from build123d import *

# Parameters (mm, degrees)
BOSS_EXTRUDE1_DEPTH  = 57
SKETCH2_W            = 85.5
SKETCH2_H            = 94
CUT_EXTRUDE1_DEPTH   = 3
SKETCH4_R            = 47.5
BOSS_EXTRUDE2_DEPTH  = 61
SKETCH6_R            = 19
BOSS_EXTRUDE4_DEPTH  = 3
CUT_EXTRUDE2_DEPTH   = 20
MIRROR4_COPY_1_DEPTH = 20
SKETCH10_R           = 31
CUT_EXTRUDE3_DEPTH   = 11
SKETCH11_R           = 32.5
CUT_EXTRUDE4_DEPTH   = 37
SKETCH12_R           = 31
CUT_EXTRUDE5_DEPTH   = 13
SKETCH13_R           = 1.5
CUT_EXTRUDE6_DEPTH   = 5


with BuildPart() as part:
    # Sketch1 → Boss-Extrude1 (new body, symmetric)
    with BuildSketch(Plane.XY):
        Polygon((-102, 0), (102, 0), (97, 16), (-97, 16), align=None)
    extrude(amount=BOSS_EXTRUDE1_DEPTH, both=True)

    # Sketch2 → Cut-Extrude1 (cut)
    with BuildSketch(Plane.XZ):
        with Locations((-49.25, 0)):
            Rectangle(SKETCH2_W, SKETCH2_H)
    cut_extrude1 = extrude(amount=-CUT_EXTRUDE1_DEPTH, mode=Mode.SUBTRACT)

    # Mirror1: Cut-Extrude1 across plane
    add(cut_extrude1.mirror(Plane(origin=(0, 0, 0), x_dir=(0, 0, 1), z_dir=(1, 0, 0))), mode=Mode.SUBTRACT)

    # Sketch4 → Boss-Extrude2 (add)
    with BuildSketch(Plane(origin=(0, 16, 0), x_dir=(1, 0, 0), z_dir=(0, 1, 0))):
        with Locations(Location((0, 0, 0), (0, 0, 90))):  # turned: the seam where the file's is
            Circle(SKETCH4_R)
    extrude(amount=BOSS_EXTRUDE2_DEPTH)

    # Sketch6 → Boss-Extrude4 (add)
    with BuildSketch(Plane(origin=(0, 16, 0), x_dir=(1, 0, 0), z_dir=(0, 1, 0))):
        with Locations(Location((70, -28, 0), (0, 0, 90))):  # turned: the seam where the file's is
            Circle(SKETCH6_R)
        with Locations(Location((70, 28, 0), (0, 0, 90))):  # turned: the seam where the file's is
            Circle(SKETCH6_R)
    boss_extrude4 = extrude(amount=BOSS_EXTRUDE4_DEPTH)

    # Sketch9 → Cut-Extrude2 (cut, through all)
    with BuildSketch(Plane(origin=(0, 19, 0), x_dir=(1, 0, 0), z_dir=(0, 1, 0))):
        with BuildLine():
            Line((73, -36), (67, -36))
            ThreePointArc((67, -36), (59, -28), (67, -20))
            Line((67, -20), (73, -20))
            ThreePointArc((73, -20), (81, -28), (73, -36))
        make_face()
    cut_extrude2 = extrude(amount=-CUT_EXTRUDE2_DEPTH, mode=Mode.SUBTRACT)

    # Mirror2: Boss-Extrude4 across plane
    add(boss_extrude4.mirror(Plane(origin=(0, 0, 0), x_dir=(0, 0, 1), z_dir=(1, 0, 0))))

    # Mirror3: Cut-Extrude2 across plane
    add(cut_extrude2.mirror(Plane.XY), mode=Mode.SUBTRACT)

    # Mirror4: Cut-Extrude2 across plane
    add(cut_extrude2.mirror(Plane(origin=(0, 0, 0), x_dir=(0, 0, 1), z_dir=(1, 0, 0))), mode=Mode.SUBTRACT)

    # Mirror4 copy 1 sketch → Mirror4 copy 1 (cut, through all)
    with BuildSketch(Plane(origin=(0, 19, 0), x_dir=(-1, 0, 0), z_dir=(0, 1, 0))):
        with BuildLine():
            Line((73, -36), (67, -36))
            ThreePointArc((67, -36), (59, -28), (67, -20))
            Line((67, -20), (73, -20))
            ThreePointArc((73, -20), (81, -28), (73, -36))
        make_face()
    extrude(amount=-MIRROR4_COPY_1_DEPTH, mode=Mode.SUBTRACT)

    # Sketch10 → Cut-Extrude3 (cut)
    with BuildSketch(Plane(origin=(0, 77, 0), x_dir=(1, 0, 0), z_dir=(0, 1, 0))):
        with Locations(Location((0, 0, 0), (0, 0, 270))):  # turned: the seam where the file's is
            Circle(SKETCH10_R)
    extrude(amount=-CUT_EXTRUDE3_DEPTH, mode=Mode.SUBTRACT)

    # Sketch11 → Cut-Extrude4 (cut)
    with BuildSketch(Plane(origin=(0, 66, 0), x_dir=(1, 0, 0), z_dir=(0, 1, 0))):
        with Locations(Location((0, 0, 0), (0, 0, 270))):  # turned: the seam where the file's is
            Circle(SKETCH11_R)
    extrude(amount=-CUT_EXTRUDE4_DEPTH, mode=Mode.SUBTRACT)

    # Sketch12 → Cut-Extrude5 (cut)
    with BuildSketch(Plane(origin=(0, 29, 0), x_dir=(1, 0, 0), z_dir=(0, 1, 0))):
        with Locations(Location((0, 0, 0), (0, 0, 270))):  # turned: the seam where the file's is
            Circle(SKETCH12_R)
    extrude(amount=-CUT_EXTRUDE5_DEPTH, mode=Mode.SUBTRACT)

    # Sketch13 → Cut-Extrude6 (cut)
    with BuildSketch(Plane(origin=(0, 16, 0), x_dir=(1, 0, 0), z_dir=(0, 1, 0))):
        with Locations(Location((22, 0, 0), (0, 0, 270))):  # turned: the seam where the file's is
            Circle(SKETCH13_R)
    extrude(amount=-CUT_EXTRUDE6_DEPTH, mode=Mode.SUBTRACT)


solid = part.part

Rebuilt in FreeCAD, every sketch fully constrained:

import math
import FreeCAD as App
import Part
import Sketcher

doc = App.newDocument("Part")
body = doc.addObject("PartDesign::Body", "Body")

sketch1 = body.newObject("Sketcher::SketchObject", "Sketch")
sketch1.AttachmentSupport = (doc.getObject("XY_Plane"), [""])
sketch1.MapMode = "FlatFace"
sketch1.addGeometry([
    Part.LineSegment(App.Vector(-102, 0, 0), App.Vector(102, 0, 0)),
    Part.LineSegment(App.Vector(102, 0, 0), App.Vector(97, 16, 0)),
    Part.LineSegment(App.Vector(97, 16, 0), App.Vector(-97, 16, 0)),
    Part.LineSegment(App.Vector(-97, 16, 0), App.Vector(-102, 0, 0)),
], False)
sketch1.addConstraint([
    Sketcher.Constraint("Coincident", 0, 2, 1, 1),
    Sketcher.Constraint("Coincident", 1, 2, 2, 1),
    Sketcher.Constraint("Coincident", 2, 2, 3, 1),
    Sketcher.Constraint("Coincident", 3, 2, 0, 1),
    Sketcher.Constraint("Horizontal", 0),
    Sketcher.Constraint("Horizontal", 2),
    Sketcher.Constraint("Symmetric", 0, 2, 3, 2, -1, 1),
    Sketcher.Constraint("Equal", 1, 3),
    Sketcher.Constraint("DistanceX", 0, 1, 0, 2, 204.0),
    Sketcher.Constraint("DistanceX", 2, 2, 2, 1, 194.0),
    Sketcher.Constraint("DistanceY", -1, 1, 1, 2, 16.0),
])
pad1 = body.newObject("PartDesign::Pad", "Pad")
pad1.Profile = sketch1
pad1.Length = 114
pad1.Midplane = True

sketch2 = body.newObject("Sketcher::SketchObject", "Sketch001")
sketch2.AttachmentSupport = (doc.getObject("XZ_Plane"), [""])
sketch2.MapMode = "FlatFace"
sketch2.addGeometry([
    Part.LineSegment(App.Vector(-92, 47, 0), App.Vector(-92, -47, 0)),
    Part.LineSegment(App.Vector(-92, -47, 0), App.Vector(-6, -47, 0)),
    Part.LineSegment(App.Vector(-6, -47, 0), App.Vector(-6, 47, 0)),
    Part.LineSegment(App.Vector(-6, 47, 0), App.Vector(-92, 47, 0)),
], False)
sketch2.addConstraint([
    Sketcher.Constraint("Coincident", 0, 2, 1, 1),
    Sketcher.Constraint("Coincident", 1, 2, 2, 1),
    Sketcher.Constraint("Coincident", 2, 2, 3, 1),
    Sketcher.Constraint("Coincident", 3, 2, 0, 1),
    Sketcher.Constraint("Vertical", 0),
    Sketcher.Constraint("Horizontal", 1),
    Sketcher.Constraint("Vertical", 2),
    Sketcher.Constraint("Horizontal", 3),
    Sketcher.Constraint("DistanceY", 0, 2, 0, 1, 94.0),
    Sketcher.Constraint("DistanceX", 1, 1, 1, 2, 85.5),
    Sketcher.Constraint("DistanceX", 0, 2, -1, 1, 92.0),
    Sketcher.Constraint("DistanceY", 0, 2, -1, 1, 47.0),
])
pocket1 = body.newObject("PartDesign::Pocket", "Pocket")
pocket1.Profile = sketch2
pocket1.Length = 3
doc.recompute()

mirrored = body.newObject("PartDesign::Mirrored", "Mirrored")
mirrored.Originals = [pocket1]
mirrored.MirrorPlane = (doc.getObject("YZ_Plane"), [""])
body.Tip = mirrored

sketch3 = body.newObject("Sketcher::SketchObject", "Sketch002")
sketch3.AttachmentSupport = (doc.getObject("XZ_Plane"), [""])
sketch3.MapMode = "FlatFace"
sketch3.AttachmentOffset = App.Placement(App.Vector(0, 0, -16), App.Rotation())
sketch3.addGeometry(Part.Circle(App.Vector(0, 0, 0), App.Vector(0, 0, 1), 48), False)
sketch3.addConstraint([
    Sketcher.Constraint("Coincident", 0, 3, -1, 1),
    Sketcher.Constraint("Diameter", 0, 95.0),
])
pad2 = body.newObject("PartDesign::Pad", "Pad001")
pad2.Profile = sketch3
pad2.Length = 61
pad2.Reversed = True

sketch4 = body.newObject("Sketcher::SketchObject", "Sketch003")
sketch4.AttachmentSupport = (doc.getObject("XZ_Plane"), [""])
sketch4.MapMode = "FlatFace"
sketch4.AttachmentOffset = App.Placement(App.Vector(0, 0, -16), App.Rotation())
sketch4.addGeometry([
    Part.Circle(App.Vector(70, 28, 0), App.Vector(0, 0, 1), 19),
    Part.Circle(App.Vector(70, -28, 0), App.Vector(0, 0, 1), 19),
], False)
sketch4.addConstraint([
    Sketcher.Constraint("Equal", 0, 1),
    Sketcher.Constraint("Symmetric", 0, 3, 1, 3, -1),
    Sketcher.Constraint("Diameter", 0, 38.0),
    Sketcher.Constraint("DistanceX", -1, 1, 0, 3, 70.0),
    Sketcher.Constraint("DistanceY", -1, 1, 0, 3, 28.0),
])
pad3 = body.newObject("PartDesign::Pad", "Pad002")
pad3.Profile = sketch4
pad3.Length = 3
pad3.Reversed = True

sketch5 = body.newObject("Sketcher::SketchObject", "Sketch004")
sketch5.AttachmentSupport = (doc.getObject("XZ_Plane"), [""])
sketch5.MapMode = "FlatFace"
sketch5.AttachmentOffset = App.Placement(App.Vector(0, 0, -19), App.Rotation())
sketch5.addGeometry([
    Part.LineSegment(App.Vector(67, 36, 0), App.Vector(73, 36, 0)),
    Part.ArcOfCircle(Part.Circle(App.Vector(73, 28, 0), App.Vector(0, 0, 1), 8), math.radians(-90), math.radians(90)),
    Part.LineSegment(App.Vector(73, 20, 0), App.Vector(67, 20, 0)),
    Part.ArcOfCircle(Part.Circle(App.Vector(67, 28, 0), App.Vector(0, 0, 1), 8), math.radians(90), math.radians(270)),
], False)
sketch5.addConstraint([
    Sketcher.Constraint("Tangent", 0, 2, 1, 2),
    Sketcher.Constraint("Tangent", 1, 1, 2, 1),
    Sketcher.Constraint("Tangent", 2, 2, 3, 2),
    Sketcher.Constraint("Tangent", 3, 1, 0, 1),
    Sketcher.Constraint("Horizontal", 0),
    Sketcher.Constraint("Horizontal", 2),
    Sketcher.Constraint("Radius", 1, 8.0),
    Sketcher.Constraint("DistanceX", 0, 1, 0, 2, 6.0),
    Sketcher.Constraint("DistanceX", -1, 1, 1, 3, 73.0),
    Sketcher.Constraint("DistanceY", -1, 1, 1, 3, 28.0),
])
pocket2 = body.newObject("PartDesign::Pocket", "Pocket001")
pocket2.Profile = sketch5
pocket2.Type = "ThroughAll"
pocket2.Reversed = True
doc.recompute()

mirrored2 = body.newObject("PartDesign::Mirrored", "Mirrored001")
mirrored2.Originals = [pad3]
mirrored2.MirrorPlane = (doc.getObject("YZ_Plane"), [""])
body.Tip = mirrored2
doc.recompute()

mirrored3 = body.newObject("PartDesign::Mirrored", "Mirrored002")
mirrored3.Originals = [pocket2]
mirrored3.MirrorPlane = (doc.getObject("XY_Plane"), [""])
body.Tip = mirrored3
doc.recompute()

mirrored4 = body.newObject("PartDesign::Mirrored", "Mirrored003")
mirrored4.Originals = [pocket2]
mirrored4.MirrorPlane = (doc.getObject("YZ_Plane"), [""])
body.Tip = mirrored4

sketch6 = body.newObject("Sketcher::SketchObject", "Sketch005")
sketch6.AttachmentSupport = (doc.getObject("XZ_Plane"), [""])
sketch6.MapMode = "FlatFace"
sketch6.AttachmentOffset = App.Placement(App.Vector(0, 0, -19), App.Rotation())
sketch6.addGeometry([
    Part.LineSegment(App.Vector(-67, -36, 0), App.Vector(-73, -36, 0)),
    Part.ArcOfCircle(Part.Circle(App.Vector(-73, -28, 0), App.Vector(0, 0, 1), 8), math.radians(90), math.radians(270)),
    Part.LineSegment(App.Vector(-73, -20, 0), App.Vector(-67, -20, 0)),
    Part.ArcOfCircle(Part.Circle(App.Vector(-67, -28, 0), App.Vector(0, 0, 1), 8), math.radians(-90), math.radians(90)),
], False)
sketch6.addConstraint([
    Sketcher.Constraint("Tangent", 0, 2, 1, 2),
    Sketcher.Constraint("Tangent", 1, 1, 2, 1),
    Sketcher.Constraint("Tangent", 2, 2, 3, 2),
    Sketcher.Constraint("Tangent", 3, 1, 0, 1),
    Sketcher.Constraint("Horizontal", 0),
    Sketcher.Constraint("Horizontal", 2),
    Sketcher.Constraint("Radius", 1, 8.0),
    Sketcher.Constraint("DistanceX", 0, 2, 0, 1, 6.0),
    Sketcher.Constraint("DistanceX", 1, 3, -1, 1, 73.0),
    Sketcher.Constraint("DistanceY", 1, 3, -1, 1, 28.0),
])
pocket3 = body.newObject("PartDesign::Pocket", "Pocket002")
pocket3.Profile = sketch6
pocket3.Type = "ThroughAll"
pocket3.Reversed = True

sketch7 = body.newObject("Sketcher::SketchObject", "Sketch006")
sketch7.AttachmentSupport = (doc.getObject("XZ_Plane"), [""])
sketch7.MapMode = "FlatFace"
sketch7.AttachmentOffset = App.Placement(App.Vector(0, 0, -77), App.Rotation())
sketch7.addGeometry(Part.Circle(App.Vector(0, 0, 0), App.Vector(0, 0, 1), 31), False)
sketch7.addConstraint([
    Sketcher.Constraint("Coincident", 0, 3, -1, 1),
    Sketcher.Constraint("Diameter", 0, 62.0),
])
pocket4 = body.newObject("PartDesign::Pocket", "Pocket003")
pocket4.Profile = sketch7
pocket4.Length = 11
pocket4.Reversed = True

sketch8 = body.newObject("Sketcher::SketchObject", "Sketch007")
sketch8.AttachmentSupport = (doc.getObject("XZ_Plane"), [""])
sketch8.MapMode = "FlatFace"
sketch8.AttachmentOffset = App.Placement(App.Vector(0, 0, -66), App.Rotation())
sketch8.addGeometry(Part.Circle(App.Vector(0, 0, 0), App.Vector(0, 0, 1), 32), False)
sketch8.addConstraint([
    Sketcher.Constraint("Coincident", 0, 3, -1, 1),
    Sketcher.Constraint("Diameter", 0, 65.0),
])
pocket5 = body.newObject("PartDesign::Pocket", "Pocket004")
pocket5.Profile = sketch8
pocket5.Length = 37
pocket5.Reversed = True

sketch9 = body.newObject("Sketcher::SketchObject", "Sketch008")
sketch9.AttachmentSupport = (doc.getObject("XZ_Plane"), [""])
sketch9.MapMode = "FlatFace"
sketch9.AttachmentOffset = App.Placement(App.Vector(0, 0, -29), App.Rotation())
sketch9.addGeometry(Part.Circle(App.Vector(0, 0, 0), App.Vector(0, 0, 1), 31), False)
sketch9.addConstraint([
    Sketcher.Constraint("Coincident", 0, 3, -1, 1),
    Sketcher.Constraint("Diameter", 0, 62.0),
])
pocket6 = body.newObject("PartDesign::Pocket", "Pocket005")
pocket6.Profile = sketch9
pocket6.Length = 13
pocket6.Reversed = True

sketch10 = body.newObject("Sketcher::SketchObject", "Sketch009")
sketch10.AttachmentSupport = (doc.getObject("XZ_Plane"), [""])
sketch10.MapMode = "FlatFace"
sketch10.AttachmentOffset = App.Placement(App.Vector(0, 0, -16), App.Rotation())
sketch10.addGeometry(Part.Circle(App.Vector(22, 0, 0), App.Vector(0, 0, 1), 1.5), False)
sketch10.addConstraint([
    Sketcher.Constraint("PointOnObject", 0, 3, -1),
    Sketcher.Constraint("Diameter", 0, 3.0),
    Sketcher.Constraint("DistanceX", -1, 1, 0, 3, 22.0),
])
pocket7 = body.newObject("PartDesign::Pocket", "Pocket006")
pocket7.Profile = sketch10
pocket7.Length = 5
pocket7.Reversed = True

doc.recompute()
